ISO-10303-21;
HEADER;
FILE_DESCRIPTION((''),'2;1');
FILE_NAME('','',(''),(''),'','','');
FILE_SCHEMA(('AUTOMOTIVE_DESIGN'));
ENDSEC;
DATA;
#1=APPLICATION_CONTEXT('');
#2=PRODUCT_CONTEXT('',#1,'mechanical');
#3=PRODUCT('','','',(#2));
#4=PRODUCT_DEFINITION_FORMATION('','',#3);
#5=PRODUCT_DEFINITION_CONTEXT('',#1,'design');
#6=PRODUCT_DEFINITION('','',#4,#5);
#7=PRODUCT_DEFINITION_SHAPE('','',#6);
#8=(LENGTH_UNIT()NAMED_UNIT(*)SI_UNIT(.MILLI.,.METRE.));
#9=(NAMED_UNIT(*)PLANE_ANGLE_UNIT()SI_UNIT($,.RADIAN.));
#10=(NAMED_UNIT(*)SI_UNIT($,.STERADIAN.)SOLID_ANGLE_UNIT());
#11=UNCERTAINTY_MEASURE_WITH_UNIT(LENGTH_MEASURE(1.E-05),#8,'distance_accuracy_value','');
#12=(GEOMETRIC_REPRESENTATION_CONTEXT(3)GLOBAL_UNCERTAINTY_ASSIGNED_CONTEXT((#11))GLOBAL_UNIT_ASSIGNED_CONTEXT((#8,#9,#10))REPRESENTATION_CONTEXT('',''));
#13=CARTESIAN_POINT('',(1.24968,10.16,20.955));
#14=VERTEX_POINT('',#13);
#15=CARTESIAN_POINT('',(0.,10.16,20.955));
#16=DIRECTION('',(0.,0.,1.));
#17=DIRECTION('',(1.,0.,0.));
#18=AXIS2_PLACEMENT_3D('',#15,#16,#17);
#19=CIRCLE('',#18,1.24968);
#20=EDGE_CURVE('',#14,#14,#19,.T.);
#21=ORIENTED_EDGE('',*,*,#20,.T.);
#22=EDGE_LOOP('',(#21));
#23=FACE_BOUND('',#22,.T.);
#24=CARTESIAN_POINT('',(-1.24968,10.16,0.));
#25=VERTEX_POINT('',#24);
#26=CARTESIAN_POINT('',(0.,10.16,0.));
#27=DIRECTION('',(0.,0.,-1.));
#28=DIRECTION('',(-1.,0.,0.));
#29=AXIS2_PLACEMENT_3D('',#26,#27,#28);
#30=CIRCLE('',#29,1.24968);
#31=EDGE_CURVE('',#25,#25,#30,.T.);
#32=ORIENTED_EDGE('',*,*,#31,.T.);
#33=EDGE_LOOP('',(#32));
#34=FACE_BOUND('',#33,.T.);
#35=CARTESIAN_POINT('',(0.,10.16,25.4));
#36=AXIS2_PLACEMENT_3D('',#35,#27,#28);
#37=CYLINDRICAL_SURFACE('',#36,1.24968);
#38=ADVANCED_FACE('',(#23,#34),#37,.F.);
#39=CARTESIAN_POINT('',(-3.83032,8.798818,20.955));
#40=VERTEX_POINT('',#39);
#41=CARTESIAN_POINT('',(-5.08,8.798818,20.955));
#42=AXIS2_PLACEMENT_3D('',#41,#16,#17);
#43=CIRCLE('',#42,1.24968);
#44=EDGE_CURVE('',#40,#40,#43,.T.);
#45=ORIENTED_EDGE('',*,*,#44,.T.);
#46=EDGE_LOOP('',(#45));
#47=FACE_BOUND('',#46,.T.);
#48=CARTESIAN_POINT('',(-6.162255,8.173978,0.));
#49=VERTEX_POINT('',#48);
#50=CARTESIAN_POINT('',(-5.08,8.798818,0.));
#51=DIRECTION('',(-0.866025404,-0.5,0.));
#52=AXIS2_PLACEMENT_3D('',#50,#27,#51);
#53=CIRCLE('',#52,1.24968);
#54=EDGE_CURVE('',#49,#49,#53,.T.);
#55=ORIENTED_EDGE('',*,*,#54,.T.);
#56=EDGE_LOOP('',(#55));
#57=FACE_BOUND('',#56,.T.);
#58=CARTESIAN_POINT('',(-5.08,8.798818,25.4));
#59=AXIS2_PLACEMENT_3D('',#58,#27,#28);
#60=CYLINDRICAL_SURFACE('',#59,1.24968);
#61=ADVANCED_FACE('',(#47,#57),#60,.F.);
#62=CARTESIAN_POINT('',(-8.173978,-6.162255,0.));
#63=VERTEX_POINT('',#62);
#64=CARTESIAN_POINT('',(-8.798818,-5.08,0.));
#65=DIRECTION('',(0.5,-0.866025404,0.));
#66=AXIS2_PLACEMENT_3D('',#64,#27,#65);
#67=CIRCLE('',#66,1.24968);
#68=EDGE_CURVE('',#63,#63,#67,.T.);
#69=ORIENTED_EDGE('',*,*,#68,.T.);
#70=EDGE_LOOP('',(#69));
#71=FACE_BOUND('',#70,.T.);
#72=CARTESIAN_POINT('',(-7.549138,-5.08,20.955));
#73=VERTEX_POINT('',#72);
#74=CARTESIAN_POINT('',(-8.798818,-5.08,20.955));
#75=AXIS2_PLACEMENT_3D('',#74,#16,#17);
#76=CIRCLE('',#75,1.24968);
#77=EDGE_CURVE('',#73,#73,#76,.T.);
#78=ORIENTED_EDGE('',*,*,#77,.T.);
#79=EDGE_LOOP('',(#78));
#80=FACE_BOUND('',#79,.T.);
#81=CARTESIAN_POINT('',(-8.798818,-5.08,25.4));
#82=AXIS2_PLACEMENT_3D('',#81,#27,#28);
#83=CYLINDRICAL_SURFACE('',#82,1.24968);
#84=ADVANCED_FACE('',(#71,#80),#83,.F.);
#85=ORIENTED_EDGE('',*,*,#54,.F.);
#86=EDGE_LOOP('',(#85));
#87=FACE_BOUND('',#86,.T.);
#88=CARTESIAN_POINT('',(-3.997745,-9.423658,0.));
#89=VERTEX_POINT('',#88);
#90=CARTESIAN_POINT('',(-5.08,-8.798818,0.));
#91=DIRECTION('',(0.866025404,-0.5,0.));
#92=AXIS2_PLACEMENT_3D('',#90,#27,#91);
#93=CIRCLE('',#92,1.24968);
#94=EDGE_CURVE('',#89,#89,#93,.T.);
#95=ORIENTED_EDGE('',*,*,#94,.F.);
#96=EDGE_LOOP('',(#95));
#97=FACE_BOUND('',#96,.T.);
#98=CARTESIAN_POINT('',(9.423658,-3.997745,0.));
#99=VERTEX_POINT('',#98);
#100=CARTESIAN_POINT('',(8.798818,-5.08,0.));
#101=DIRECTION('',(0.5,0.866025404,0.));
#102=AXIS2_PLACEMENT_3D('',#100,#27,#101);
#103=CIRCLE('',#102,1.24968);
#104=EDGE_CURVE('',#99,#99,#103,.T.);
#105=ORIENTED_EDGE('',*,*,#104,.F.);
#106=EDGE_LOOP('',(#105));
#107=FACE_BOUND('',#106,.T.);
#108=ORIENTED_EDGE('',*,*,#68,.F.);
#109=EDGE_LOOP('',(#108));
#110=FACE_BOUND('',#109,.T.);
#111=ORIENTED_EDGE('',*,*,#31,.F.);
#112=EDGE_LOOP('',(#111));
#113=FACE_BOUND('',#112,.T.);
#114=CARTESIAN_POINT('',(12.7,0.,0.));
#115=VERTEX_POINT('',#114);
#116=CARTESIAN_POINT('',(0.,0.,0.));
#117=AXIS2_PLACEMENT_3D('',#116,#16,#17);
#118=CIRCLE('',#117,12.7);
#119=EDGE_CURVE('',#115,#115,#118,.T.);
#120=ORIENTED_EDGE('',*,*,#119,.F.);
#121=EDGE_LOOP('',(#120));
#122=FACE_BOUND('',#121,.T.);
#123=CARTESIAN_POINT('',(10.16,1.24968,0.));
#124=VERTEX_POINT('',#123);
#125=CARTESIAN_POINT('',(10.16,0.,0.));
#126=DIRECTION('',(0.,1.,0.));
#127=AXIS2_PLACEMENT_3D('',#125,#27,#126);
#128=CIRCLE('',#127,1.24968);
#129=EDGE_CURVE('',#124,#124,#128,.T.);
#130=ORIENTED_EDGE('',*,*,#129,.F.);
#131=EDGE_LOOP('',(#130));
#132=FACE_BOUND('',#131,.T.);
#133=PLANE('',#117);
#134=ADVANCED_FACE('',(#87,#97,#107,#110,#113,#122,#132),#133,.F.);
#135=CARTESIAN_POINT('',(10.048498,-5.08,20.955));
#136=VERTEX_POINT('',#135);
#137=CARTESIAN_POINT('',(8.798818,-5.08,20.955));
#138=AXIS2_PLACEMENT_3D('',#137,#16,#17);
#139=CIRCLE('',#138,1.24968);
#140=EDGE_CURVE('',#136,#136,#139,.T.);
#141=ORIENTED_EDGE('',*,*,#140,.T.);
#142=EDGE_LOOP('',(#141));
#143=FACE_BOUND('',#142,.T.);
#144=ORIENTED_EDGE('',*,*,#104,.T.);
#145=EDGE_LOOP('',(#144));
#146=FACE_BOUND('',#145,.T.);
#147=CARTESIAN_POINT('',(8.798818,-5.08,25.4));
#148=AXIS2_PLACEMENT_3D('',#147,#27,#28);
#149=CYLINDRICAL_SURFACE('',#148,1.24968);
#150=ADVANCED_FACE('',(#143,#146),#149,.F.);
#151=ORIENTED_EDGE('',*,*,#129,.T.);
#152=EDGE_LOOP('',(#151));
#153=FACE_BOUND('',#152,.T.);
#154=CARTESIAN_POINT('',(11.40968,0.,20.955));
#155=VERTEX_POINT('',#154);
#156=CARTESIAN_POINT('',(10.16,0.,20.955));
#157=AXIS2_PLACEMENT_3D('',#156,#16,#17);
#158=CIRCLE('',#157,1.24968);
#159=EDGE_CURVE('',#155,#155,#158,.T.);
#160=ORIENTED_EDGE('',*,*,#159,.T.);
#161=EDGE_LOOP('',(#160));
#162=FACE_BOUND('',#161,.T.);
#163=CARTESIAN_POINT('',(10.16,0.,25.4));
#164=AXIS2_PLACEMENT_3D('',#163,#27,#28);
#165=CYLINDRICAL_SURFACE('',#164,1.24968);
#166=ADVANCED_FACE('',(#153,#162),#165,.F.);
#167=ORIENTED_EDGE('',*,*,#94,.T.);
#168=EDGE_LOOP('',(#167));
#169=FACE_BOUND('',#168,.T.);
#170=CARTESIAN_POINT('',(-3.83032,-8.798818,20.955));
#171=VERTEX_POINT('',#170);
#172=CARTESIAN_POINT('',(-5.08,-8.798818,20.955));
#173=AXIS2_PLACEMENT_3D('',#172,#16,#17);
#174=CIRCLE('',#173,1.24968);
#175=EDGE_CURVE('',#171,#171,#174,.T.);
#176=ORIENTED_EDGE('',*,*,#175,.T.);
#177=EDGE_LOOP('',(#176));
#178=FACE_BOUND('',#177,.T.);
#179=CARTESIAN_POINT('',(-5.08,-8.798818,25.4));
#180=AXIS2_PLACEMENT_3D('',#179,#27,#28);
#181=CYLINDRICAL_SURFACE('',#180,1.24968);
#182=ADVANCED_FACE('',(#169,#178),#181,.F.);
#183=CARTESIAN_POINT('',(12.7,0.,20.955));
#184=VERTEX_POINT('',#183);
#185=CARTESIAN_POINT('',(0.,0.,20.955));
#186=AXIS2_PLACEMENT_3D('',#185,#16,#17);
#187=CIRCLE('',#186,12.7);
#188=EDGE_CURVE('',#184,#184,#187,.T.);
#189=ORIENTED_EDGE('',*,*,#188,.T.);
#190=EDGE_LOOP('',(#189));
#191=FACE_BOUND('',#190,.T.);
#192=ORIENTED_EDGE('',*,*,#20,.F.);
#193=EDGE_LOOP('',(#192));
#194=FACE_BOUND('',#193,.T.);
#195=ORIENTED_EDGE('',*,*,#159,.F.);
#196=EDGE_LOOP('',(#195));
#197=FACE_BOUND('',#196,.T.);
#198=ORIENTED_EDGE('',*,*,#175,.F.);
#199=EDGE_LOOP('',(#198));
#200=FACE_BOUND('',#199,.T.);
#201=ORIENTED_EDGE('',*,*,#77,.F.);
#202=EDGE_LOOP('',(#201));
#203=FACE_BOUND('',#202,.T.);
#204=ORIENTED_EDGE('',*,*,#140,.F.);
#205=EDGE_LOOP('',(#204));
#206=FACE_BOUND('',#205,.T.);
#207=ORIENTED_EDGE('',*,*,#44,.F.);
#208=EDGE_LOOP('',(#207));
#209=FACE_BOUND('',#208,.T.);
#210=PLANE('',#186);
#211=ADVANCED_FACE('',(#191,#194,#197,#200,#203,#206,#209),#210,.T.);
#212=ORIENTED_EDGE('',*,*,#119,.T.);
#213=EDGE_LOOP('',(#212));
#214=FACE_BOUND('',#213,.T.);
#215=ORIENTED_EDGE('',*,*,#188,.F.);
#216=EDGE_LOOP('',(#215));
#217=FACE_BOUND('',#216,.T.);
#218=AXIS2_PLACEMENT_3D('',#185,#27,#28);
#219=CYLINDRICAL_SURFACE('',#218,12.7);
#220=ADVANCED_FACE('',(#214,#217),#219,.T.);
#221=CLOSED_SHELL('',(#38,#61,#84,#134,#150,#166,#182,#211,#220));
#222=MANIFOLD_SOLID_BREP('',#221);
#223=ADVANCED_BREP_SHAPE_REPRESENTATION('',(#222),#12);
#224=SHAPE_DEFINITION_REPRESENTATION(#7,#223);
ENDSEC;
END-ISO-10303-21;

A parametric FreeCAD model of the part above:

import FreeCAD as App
import Part
import Sketcher

V = App.Vector
Q = App.Units.Quantity

doc = App.newDocument("Part")
body = doc.addObject("PartDesign::Body", "Body")

# Sketch on XY plane
sketch1 = body.newObject("Sketcher::SketchObject", "Sketch")
sketch1.AttachmentSupport = (doc.getObject("XY_Plane"), [""])
sketch1.MapMode = "FlatFace"
sketch1.addGeometry(Part.Circle(V(0, 0, 0), V(0, 0, 1), 12.7), False)
sketch1.addConstraint(Sketcher.Constraint("Coincident", 0, 3, -1, 1))
sketch1.addConstraint(Sketcher.Constraint("Diameter", 0, Q("1 in")))
pad1 = body.newObject("PartDesign::Pad", "Pad")
pad1.Profile = sketch1
pad1.Length = Q("0.825 in")

# Sketch on XY plane
sketch2 = body.newObject("Sketcher::SketchObject", "Sketch001")
sketch2.AttachmentSupport = (doc.getObject("XY_Plane"), [""])
sketch2.MapMode = "FlatFace"
sketch2.addGeometry(Part.Circle(V(0, 10.16, 0), V(0, 0, 1), 1.24968), False)
sketch2.addConstraint(Sketcher.Constraint("PointOnObject", 0, 3, -2))
sketch2.addConstraint(Sketcher.Constraint("Diameter", 0, Q("0.0984 in")))
sketch2.addConstraint(Sketcher.Constraint("DistanceY", -1, 1, 0, 3, Q("0.4 in")))
pocket1 = body.newObject("PartDesign::Pocket", "Pocket")
pocket1.Profile = sketch2
pocket1.Length = Q("1 in")
pocket1.Reversed = True
doc.recompute()

polarpattern = body.newObject("PartDesign::PolarPattern", "PolarPattern")
polarpattern.Originals = [pocket1]
polarpattern.Axis = (doc.getObject("Z_Axis"), [""])
polarpattern.Angle = 360
polarpattern.Occurrences = 3
body.Tip = polarpattern
doc.recompute()

polarpattern2 = body.newObject("PartDesign::PolarPattern", "PolarPattern001")
polarpattern2.Originals = [pocket1]
polarpattern2.Axis = (doc.getObject("Z_Axis"), [""])
polarpattern2.Angle = 30
polarpattern2.Occurrences = 2
body.Tip = polarpattern2

# Sketch on XY plane
sketch3 = body.newObject("Sketcher::SketchObject", "Sketch002")
sketch3.AttachmentSupport = (doc.getObject("XY_Plane"), [""])
sketch3.MapMode = "FlatFace"
sketch3.addGeometry(Part.Circle(V(-5.08, -8.798818, 0), V(0, 0, 1), 1.24968), False)
sketch3.addConstraint(Sketcher.Constraint("Diameter", 0, Q("0.0984 in")))
sketch3.addConstraint(Sketcher.Constraint("DistanceX", 0, 3, -1, 1, Q("0.2 in")))
sketch3.addConstraint(Sketcher.Constraint("DistanceY", 0, 3, -1, 1, 8.798818))
pocket2 = body.newObject("PartDesign::Pocket", "Pocket001")
pocket2.Profile = sketch3
pocket2.Length = Q("1 in")
pocket2.Reversed = True

# Sketch on XY plane
sketch4 = body.newObject("Sketcher::SketchObject", "Sketch003")
sketch4.AttachmentSupport = (doc.getObject("XY_Plane"), [""])
sketch4.MapMode = "FlatFace"
sketch4.addGeometry(Part.Circle(V(10.16, 0, 0), V(0, 0, 1), 1.24968), False)
sketch4.addConstraint(Sketcher.Constraint("PointOnObject", 0, 3, -1))
sketch4.addConstraint(Sketcher.Constraint("Diameter", 0, Q("0.0984 in")))
sketch4.addConstraint(Sketcher.Constraint("DistanceX", -1, 1, 0, 3, Q("0.4 in")))
pocket3 = body.newObject("PartDesign::Pocket", "Pocket002")
pocket3.Profile = sketch4
pocket3.Length = Q("1 in")
pocket3.Reversed = True

doc.recompute()
